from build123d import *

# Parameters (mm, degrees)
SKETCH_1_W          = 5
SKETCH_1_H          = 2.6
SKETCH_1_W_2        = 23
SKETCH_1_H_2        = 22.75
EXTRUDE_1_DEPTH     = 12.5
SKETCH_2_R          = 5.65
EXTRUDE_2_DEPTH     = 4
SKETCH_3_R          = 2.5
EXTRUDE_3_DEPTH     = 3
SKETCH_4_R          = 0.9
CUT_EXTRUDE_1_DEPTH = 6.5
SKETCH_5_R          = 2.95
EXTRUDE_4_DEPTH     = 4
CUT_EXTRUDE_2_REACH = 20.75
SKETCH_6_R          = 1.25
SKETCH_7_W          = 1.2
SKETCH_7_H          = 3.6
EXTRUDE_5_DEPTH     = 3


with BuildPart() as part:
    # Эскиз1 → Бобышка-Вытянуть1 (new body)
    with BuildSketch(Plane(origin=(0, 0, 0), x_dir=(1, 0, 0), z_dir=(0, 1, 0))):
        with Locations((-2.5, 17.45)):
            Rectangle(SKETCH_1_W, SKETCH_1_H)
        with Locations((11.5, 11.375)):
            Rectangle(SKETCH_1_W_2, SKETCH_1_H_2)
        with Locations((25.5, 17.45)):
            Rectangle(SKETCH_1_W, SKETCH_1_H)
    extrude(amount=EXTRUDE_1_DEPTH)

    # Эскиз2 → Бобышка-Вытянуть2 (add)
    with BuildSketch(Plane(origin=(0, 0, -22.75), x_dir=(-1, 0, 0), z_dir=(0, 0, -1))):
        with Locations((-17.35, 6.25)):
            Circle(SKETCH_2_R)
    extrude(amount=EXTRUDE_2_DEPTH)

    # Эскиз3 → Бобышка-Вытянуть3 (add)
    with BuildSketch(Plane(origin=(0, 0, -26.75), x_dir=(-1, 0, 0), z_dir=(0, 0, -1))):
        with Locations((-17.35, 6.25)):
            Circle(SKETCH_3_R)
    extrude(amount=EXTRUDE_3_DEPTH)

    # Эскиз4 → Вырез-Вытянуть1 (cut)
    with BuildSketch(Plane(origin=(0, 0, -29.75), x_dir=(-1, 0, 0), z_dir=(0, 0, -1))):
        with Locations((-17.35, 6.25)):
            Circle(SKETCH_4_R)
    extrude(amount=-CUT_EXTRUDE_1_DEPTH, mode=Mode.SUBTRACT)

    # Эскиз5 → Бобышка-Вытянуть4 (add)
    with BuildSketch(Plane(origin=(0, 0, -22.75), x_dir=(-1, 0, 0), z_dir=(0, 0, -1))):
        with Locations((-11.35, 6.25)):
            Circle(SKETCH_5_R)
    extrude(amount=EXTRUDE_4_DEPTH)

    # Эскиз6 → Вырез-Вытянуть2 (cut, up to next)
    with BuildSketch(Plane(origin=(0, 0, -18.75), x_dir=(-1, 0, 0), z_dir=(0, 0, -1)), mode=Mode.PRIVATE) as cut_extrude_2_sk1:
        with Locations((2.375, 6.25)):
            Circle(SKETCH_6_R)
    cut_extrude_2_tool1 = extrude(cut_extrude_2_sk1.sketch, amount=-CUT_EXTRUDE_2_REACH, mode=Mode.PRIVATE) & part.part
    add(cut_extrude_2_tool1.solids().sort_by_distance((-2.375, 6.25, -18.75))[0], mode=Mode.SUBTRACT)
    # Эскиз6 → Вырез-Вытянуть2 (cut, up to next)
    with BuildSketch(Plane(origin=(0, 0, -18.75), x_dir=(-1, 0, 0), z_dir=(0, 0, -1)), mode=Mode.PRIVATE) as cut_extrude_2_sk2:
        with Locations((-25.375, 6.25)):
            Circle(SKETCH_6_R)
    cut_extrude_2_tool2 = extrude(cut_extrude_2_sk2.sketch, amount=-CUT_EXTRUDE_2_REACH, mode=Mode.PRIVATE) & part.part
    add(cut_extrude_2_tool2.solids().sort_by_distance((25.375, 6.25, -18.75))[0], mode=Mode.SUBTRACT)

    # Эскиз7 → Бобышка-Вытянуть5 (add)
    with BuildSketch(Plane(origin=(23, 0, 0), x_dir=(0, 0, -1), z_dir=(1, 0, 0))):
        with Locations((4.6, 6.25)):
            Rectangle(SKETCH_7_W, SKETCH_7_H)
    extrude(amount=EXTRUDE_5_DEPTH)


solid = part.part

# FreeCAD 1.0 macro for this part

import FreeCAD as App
import Part
import Sketcher

V = App.Vector
Q = App.Units.Quantity


def add_polygon(sketch, points):
    """Adds a closed chain of lines whose ends are joined by coincident constraints."""
    first, n = sketch.GeometryCount, len(points)
    for a, b in zip(points, points[1:] + points[:1]):
        sketch.addGeometry(Part.LineSegment(App.Vector(*a, 0), App.Vector(*b, 0)), False)
    for i in range(n):
        sketch.addConstraint(Sketcher.Constraint("Coincident", first + i, 2, first + (i + 1) % n, 1))

doc = App.newDocument("Part")
body = doc.addObject("PartDesign::Body", "Body")

sketch1 = body.newObject("Sketcher::SketchObject", "Sketch")
sketch1.AttachmentSupport = (doc.getObject("XZ_Plane"), [""])
sketch1.MapMode = "FlatFace"
add_polygon(sketch1, [(-5, -18.8), (-5, -16.1), (0, -16.1), (0, 0), (23, 0), (23, -16.1), (28, -16.1), (28, -18.8), (23, -18.8), (23, -22.8), (0, -22.8), (0, -18.8)])
sketch1.addConstraint(Sketcher.Constraint("Vertical", 0))
sketch1.addConstraint(Sketcher.Constraint("Horizontal", 1))
sketch1.addConstraint(Sketcher.Constraint("Vertical", 2))
sketch1.addConstraint(Sketcher.Constraint("Horizontal", 3))
sketch1.addConstraint(Sketcher.Constraint("Vertical", 4))
sketch1.addConstraint(Sketcher.Constraint("Horizontal", 5))
sketch1.addConstraint(Sketcher.Constraint("Vertical", 6))
sketch1.addConstraint(Sketcher.Constraint("Horizontal", 7))
sketch1.addConstraint(Sketcher.Constraint("Vertical", 8))
sketch1.addConstraint(Sketcher.Constraint("Horizontal", 9))
sketch1.addConstraint(Sketcher.Constraint("Vertical", 10))
sketch1.addConstraint(Sketcher.Constraint("Horizontal", 11))
sketch1.addConstraint(Sketcher.Constraint("Coincident", 2, 2, -1, 1))
sketch1.addConstraint(Sketcher.Constraint("PointOnObject", 9, 2, -2))
sketch1.addConstraint(Sketcher.Constraint("Horizontal", 1, 2, 4, 2))
sketch1.addConstraint(Sketcher.Constraint("Horizontal", 7, 2, 10, 2))
sketch1.addConstraint(Sketcher.Constraint("Vertical", 4, 2, 7, 2))
sketch1.addConstraint(Sketcher.Constraint("Equal", 1, 5))
sketch1.addConstraint(Sketcher.Constraint("DistanceX", 1, 1, 1, 2, Q("5 mm")))
sketch1.addConstraint(Sketcher.Constraint("DistanceX", 3, 1, 3, 2, Q("23 mm")))
sketch1.addConstraint(Sketcher.Constraint("DistanceY", 8, 2, 8, 1, Q("4 mm")))
sketch1.addConstraint(Sketcher.Constraint("DistanceY", 0, 1, 0, 2, Q("2.6 mm")))
sketch1.addConstraint(Sketcher.Constraint("DistanceY", 2, 1, 2, 2, Q("16.15 mm")))
pad1 = body.newObject("PartDesign::Pad", "Pad")
pad1.Profile = sketch1
pad1.Length = 12.5
pad1.Reversed = True

sketch2 = body.newObject("Sketcher::SketchObject", "Sketch001")
sketch2.AttachmentSupport = (doc.getObject("XY_Plane"), [""])
sketch2.MapMode = "FlatFace"
sketch2.AttachmentOffset = App.Placement(V(0, 0, -22.75), App.Rotation())
sketch2.addGeometry(Part.Circle(V(17, 6, 0), V(0, 0, 1), 6), False)
sketch2.addConstraint(Sketcher.Constraint("Diameter", 0, Q("11.3 mm")))
sketch2.addConstraint(Sketcher.Constraint("DistanceX", -1, 1, 0, 3, Q("17.35 mm")))
sketch2.addConstraint(Sketcher.Constraint("DistanceY", -1, 1, 0, 3, Q("6.25 mm")))
pad2 = body.newObject("PartDesign::Pad", "Pad001")
pad2.Profile = sketch2
pad2.Length = 4
pad2.Reversed = True

sketch3 = body.newObject("Sketcher::SketchObject", "Sketch002")
sketch3.AttachmentSupport = (doc.getObject("XY_Plane"), [""])
sketch3.MapMode = "FlatFace"
sketch3.AttachmentOffset = App.Placement(V(0, 0, -26.75), App.Rotation())
sketch3.addGeometry(Part.Circle(V(17.4, 6.2, 0), V(0, 0, 1), 2.5), False)
sketch3.addConstraint(Sketcher.Constraint("Diameter", 0, Q("5 mm")))
sketch3.addConstraint(Sketcher.Constraint("DistanceX", -1, 1, 0, 3, Q("17.35 mm")))
sketch3.addConstraint(Sketcher.Constraint("DistanceY", -1, 1, 0, 3, Q("6.25 mm")))
pad3 = body.newObject("PartDesign::Pad", "Pad002")
pad3.Profile = sketch3
pad3.Length = 3
pad3.Reversed = True

sketch4 = body.newObject("Sketcher::SketchObject", "Sketch003")
sketch4.AttachmentSupport = (doc.getObject("XY_Plane"), [""])
sketch4.MapMode = "FlatFace"
sketch4.AttachmentOffset = App.Placement(V(0, 0, -29.75), App.Rotation())
sketch4.addGeometry(Part.Circle(V(17.4, 6.2, 0), V(0, 0, 1), 0.9), False)
sketch4.addConstraint(Sketcher.Constraint("Diameter", 0, Q("1.8 mm")))
sketch4.addConstraint(Sketcher.Constraint("DistanceX", -1, 1, 0, 3, Q("17.35 mm")))
sketch4.addConstraint(Sketcher.Constraint("DistanceY", -1, 1, 0, 3, Q("6.25 mm")))
pocket1 = body.newObject("PartDesign::Pocket", "Pocket")
pocket1.Profile = sketch4
pocket1.Length = 6.5
pocket1.Reversed = True

sketch5 = body.newObject("Sketcher::SketchObject", "Sketch004")
sketch5.AttachmentSupport = (doc.getObject("XY_Plane"), [""])
sketch5.MapMode = "FlatFace"
sketch5.AttachmentOffset = App.Placement(V(0, 0, -22.75), App.Rotation())
sketch5.addGeometry(Part.Circle(V(11.3, 6.2, 0), V(0, 0, 1), 3), False)
sketch5.addConstraint(Sketcher.Constraint("Diameter", 0, Q("5.9 mm")))
sketch5.addConstraint(Sketcher.Constraint("DistanceX", -1, 1, 0, 3, Q("11.35 mm")))
sketch5.addConstraint(Sketcher.Constraint("DistanceY", -1, 1, 0, 3, Q("6.25 mm")))
pad4 = body.newObject("PartDesign::Pad", "Pad003")
pad4.Profile = sketch5
pad4.Length = 4
pad4.Reversed = True

sketch6 = body.newObject("Sketcher::SketchObject", "Sketch005")
sketch6.AttachmentSupport = (doc.getObject("XY_Plane"), [""])
sketch6.MapMode = "FlatFace"
sketch6.AttachmentOffset = App.Placement(V(0, 0, -18.75), App.Rotation())
sketch6.addGeometry(Part.Circle(V(-2.4, 6.2, 0), V(0, 0, 1), 1.2), False)
sketch6.addConstraint(Sketcher.Constraint("Diameter", 0, Q("2.5 mm")))
sketch6.addConstraint(Sketcher.Constraint("DistanceY", -1, 1, 0, 3, Q("6.25 mm")))
sketch6.addConstraint(Sketcher.Constraint("DistanceX", 0, 3, -1, 1, Q("2.375 mm")))
pocket2 = body.newObject("PartDesign::Pocket", "Pocket001")
pocket2.Profile = sketch6
pocket2.Type = "UpToFirst"
pocket2.Reversed = True

sketch7 = body.newObject("Sketcher::SketchObject", "Sketch006")
sketch7.AttachmentSupport = (doc.getObject("XY_Plane"), [""])
sketch7.MapMode = "FlatFace"
sketch7.AttachmentOffset = App.Placement(V(0, 0, -18.75), App.Rotation())
sketch7.addGeometry(Part.Circle(V(25.4, 6.2, 0), V(0, 0, 1), 1.2), False)
sketch7.addConstraint(Sketcher.Constraint("Diameter", 0, Q("2.5 mm")))
sketch7.addConstraint(Sketcher.Constraint("DistanceY", -1, 1, 0, 3, Q("6.25 mm")))
sketch7.addConstraint(Sketcher.Constraint("DistanceX", -1, 1, 0, 3, Q("25.375 mm")))
pocket3 = body.newObject("PartDesign::Pocket", "Pocket002")
pocket3.Profile = sketch7
pocket3.Type = "UpToFirst"
pocket3.Reversed = True

sketch8 = body.newObject("Sketcher::SketchObject", "Sketch007")
sketch8.AttachmentSupport = (doc.getObject("YZ_Plane"), [""])
sketch8.MapMode = "FlatFace"
sketch8.AttachmentOffset = App.Placement(V(0, 0, 23), App.Rotation())
add_polygon(sketch8, [(8.1, -4), (4.5, -4), (4.5, -5.2), (8.1, -5.2)])
sketch8.addConstraint(Sketcher.Constraint("Horizontal", 0))
sketch8.addConstraint(Sketcher.Constraint("Vertical", 1))
sketch8.addConstraint(Sketcher.Constraint("Horizontal", 2))
sketch8.addConstraint(Sketcher.Constraint("Vertical", 3))
sketch8.addConstraint(Sketcher.Constraint("DistanceX", 0, 2, 0, 1, Q("3.6 mm")))
sketch8.addConstraint(Sketcher.Constraint("DistanceY", 1, 2, 1, 1, Q("1.2 mm")))
sketch8.addConstraint(Sketcher.Constraint("DistanceY", 0, 2, -1, 1, Q("4 mm")))
sketch8.addConstraint(Sketcher.Constraint("DistanceX", -1, 1, 0, 2, Q("4.45 mm")))
pad5 = body.newObject("PartDesign::Pad", "Pad004")
pad5.Profile = sketch8
pad5.Length = 3

doc.recompute()
